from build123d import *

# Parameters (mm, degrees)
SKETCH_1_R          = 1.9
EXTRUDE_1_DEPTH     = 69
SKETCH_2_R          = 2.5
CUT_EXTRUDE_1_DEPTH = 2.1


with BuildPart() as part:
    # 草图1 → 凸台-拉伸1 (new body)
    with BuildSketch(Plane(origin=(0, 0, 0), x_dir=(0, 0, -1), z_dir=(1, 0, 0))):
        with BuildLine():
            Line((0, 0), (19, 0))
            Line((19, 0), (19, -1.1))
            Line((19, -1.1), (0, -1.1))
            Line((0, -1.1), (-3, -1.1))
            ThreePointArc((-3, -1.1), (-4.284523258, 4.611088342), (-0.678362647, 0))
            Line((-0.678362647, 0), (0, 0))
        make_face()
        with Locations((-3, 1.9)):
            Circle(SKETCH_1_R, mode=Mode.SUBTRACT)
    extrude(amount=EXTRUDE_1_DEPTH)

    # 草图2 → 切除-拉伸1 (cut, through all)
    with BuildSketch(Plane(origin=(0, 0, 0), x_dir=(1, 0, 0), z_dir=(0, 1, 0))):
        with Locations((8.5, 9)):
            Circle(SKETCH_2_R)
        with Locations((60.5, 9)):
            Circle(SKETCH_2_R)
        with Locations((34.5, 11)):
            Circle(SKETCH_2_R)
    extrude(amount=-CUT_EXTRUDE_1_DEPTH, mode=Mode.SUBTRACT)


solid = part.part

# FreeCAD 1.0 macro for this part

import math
import FreeCAD as App
import Part
import Sketcher
Q = App.Units.Quantity

doc = App.newDocument("Part")
body = doc.addObject("PartDesign::Body", "Body")

# Sketch on YZ plane
sketch1 = doc.addObject("Sketcher::SketchObject", "Sketch")
body.addObject(sketch1)
sketch1.AttachmentSupport = (doc.YZ_Plane, [""])
sketch1.MapMode = "FlatFace"
sketch1.addGeometry(Part.LineSegment(App.Vector(-1.1, -19, 0), App.Vector(0, -19, 0)), False)
sketch1.addGeometry(Part.LineSegment(App.Vector(0, -19, 0), App.Vector(0, 0.7, 0)), False)
sketch1.addGeometry(Part.ArcOfCircle(Part.Circle(App.Vector(1.9, 3, 0), App.Vector(0, 0, 1), 3), math.radians(-129), math.radians(180)), False)
sketch1.addGeometry(Part.LineSegment(App.Vector(-1.1, 3, 0), App.Vector(-1.1, -19, 0)), False)
sketch1.addGeometry(Part.Circle(App.Vector(1.9, 3, 0), App.Vector(0, 0, 1), 1.9), False)
sketch1.addConstraint(Sketcher.Constraint("Coincident", 0, 2, 1, 1))
sketch1.addConstraint(Sketcher.Constraint("Coincident", 1, 2, 2, 1))
sketch1.addConstraint(Sketcher.Constraint("Tangent", 2, 2, 3, 1))
sketch1.addConstraint(Sketcher.Constraint("Coincident", 3, 2, 0, 1))
sketch1.addConstraint(Sketcher.Constraint("Horizontal", 0))
sketch1.addConstraint(Sketcher.Constraint("Vertical", 1))
sketch1.addConstraint(Sketcher.Constraint("Vertical", 3))
sketch1.addConstraint(Sketcher.Constraint("Coincident", 4, 3, 2, 3))
sketch1.addConstraint(Sketcher.Constraint("PointOnObject", 0, 2, -2))
sketch1.addConstraint(Sketcher.Constraint("Radius", 2, Q("3 mm")))
sketch1.addConstraint(Sketcher.Constraint("Diameter", 4, Q("3.8 mm")))
sketch1.addConstraint(Sketcher.Constraint("DistanceY", 3, 2, 3, 1, Q("22 mm")))
sketch1.addConstraint(Sketcher.Constraint("DistanceX", 0, 1, 0, 2, Q("1.1 mm")))
sketch1.addConstraint(Sketcher.Constraint("DistanceY", -1, 1, 2, 3, Q("3 mm")))
pad1 = doc.addObject("PartDesign::Pad", "Pad")
body.addObject(pad1)
pad1.Profile = sketch1
pad1.Length = 69

# Sketch on XZ plane
sketch2 = doc.addObject("Sketcher::SketchObject", "Sketch001")
body.addObject(sketch2)
sketch2.AttachmentSupport = (doc.XZ_Plane, [""])
sketch2.MapMode = "FlatFace"
sketch2.addGeometry(Part.Circle(App.Vector(8.5, -9, 0), App.Vector(0, 0, 1), 2.5), False)
sketch2.addGeometry(Part.Circle(App.Vector(60.5, -9, 0), App.Vector(0, 0, 1), 2.5), False)
sketch2.addGeometry(Part.Circle(App.Vector(34.5, -11, 0), App.Vector(0, 0, 1), 2.5), False)
sketch2.addConstraint(Sketcher.Constraint("Equal", 0, 1))
sketch2.addConstraint(Sketcher.Constraint("Equal", 1, 2))
sketch2.addConstraint(Sketcher.Constraint("Horizontal", 0, 3, 1, 3))
sketch2.addConstraint(Sketcher.Constraint("Diameter", 0, Q("5 mm")))
sketch2.addConstraint(Sketcher.Constraint("DistanceY", 0, 3, -1, 1, Q("9 mm")))
sketch2.addConstraint(Sketcher.Constraint("DistanceY", 2, 3, -1, 1, Q("11 mm")))
sketch2.addConstraint(Sketcher.Constraint("DistanceX", 0, 3, 1, 3, Q("52 mm")))
sketch2.addConstraint(Sketcher.Constraint("DistanceX", 0, 3, 2, 3, Q("26 mm")))
sketch2.addConstraint(Sketcher.Constraint("DistanceX", -1, 1, 0, 3, Q("8.5 mm")))
pocket1 = doc.addObject("PartDesign::Pocket", "Pocket")
body.addObject(pocket1)
pocket1.Profile = sketch2
pocket1.Type = "ThroughAll"
pocket1.Reversed = True

doc.recompute()
